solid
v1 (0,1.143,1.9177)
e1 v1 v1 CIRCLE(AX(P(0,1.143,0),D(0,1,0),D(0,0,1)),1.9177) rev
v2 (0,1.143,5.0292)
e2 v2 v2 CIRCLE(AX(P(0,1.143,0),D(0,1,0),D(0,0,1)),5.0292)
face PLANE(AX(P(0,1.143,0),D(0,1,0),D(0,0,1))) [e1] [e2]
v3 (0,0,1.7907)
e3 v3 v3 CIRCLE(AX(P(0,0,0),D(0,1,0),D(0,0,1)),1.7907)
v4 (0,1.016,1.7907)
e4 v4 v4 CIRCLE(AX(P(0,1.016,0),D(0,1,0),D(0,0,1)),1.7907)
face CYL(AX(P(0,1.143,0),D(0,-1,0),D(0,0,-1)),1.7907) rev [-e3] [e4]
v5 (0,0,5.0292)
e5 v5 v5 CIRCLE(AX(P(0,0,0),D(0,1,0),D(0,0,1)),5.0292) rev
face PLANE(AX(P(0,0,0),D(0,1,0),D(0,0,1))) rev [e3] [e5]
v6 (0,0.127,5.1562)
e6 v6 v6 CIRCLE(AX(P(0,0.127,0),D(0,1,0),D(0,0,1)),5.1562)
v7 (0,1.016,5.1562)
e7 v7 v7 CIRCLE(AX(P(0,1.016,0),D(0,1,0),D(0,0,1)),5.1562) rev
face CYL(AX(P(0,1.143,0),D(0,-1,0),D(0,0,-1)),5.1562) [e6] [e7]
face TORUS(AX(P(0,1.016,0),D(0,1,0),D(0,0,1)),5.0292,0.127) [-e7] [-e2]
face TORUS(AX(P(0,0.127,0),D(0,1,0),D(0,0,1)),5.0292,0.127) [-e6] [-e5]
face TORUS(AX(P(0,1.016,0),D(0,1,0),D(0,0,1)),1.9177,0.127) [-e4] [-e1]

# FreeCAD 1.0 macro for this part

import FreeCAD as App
import Part
import Sketcher
Q = App.Units.Quantity


def edges_at(feature, points):
    """Names of the edges that pass closest to the given points."""
    edges = feature.Shape.Edges
    near = lambda p: min(range(len(edges)), key=lambda i: edges[i].distToShape(Part.Vertex(*p))[0])
    return sorted({f"Edge{near(p) + 1}" for p in points})

doc = App.newDocument("Part")
params = doc.addObject("Spreadsheet::Sheet", "Params")
for row, (alias, value) in enumerate([
    ("sketch1_diameter", "0.406 in"),
    ("sketch1_diameter2", "0.141 in"),
    ("pad1_length", "0.045 in"),
    ("fillet_radius", "0.005 in"),
], start=1):
    params.set(f"A{row}", alias)
    params.set(f"B{row}", "=" + value)
    params.setAlias(f"B{row}", alias)

body = doc.addObject("PartDesign::Body", "Body")

# Sketch on XZ plane
sketch1 = body.newObject("Sketcher::SketchObject", "Sketch")
sketch1.AttachmentSupport = (doc.getObject("XZ_Plane"), [""])
sketch1.MapMode = "FlatFace"
sketch1.addGeometry([
    Part.Circle(App.Vector(0, 0, 0), App.Vector(0, 0, 1), 5.2),
    Part.Circle(App.Vector(0, 0, 0), App.Vector(0, 0, 1), 1.8),
], False)
sketch1.addConstraint([
    Sketcher.Constraint("Coincident", 0, 3, -1, 1),
    Sketcher.Constraint("Coincident", 1, 3, -1, 1),
    Sketcher.Constraint("Diameter", 0, Q("0.406 in")),
    Sketcher.Constraint("Diameter", 1, Q("0.141 in")),
])
sketch1.setExpression("Constraints[2]", "Params.sketch1_diameter")
sketch1.setExpression("Constraints[3]", "Params.sketch1_diameter2")
pad1 = body.newObject("PartDesign::Pad", "Pad")
pad1.Profile = sketch1
pad1.setExpression("Length", "Params.pad1_length")
pad1.Reversed = True
doc.recompute()

fillet = body.newObject("PartDesign::Fillet", "Fillet")
fillet.Base = (pad1, edges_at(pad1, [(0, 0, -5.156), (0, 1.143, -5.156), (0, 1.143, -1.791)]))
fillet.setExpression("Radius", "Params.fillet_radius")

doc.recompute()
